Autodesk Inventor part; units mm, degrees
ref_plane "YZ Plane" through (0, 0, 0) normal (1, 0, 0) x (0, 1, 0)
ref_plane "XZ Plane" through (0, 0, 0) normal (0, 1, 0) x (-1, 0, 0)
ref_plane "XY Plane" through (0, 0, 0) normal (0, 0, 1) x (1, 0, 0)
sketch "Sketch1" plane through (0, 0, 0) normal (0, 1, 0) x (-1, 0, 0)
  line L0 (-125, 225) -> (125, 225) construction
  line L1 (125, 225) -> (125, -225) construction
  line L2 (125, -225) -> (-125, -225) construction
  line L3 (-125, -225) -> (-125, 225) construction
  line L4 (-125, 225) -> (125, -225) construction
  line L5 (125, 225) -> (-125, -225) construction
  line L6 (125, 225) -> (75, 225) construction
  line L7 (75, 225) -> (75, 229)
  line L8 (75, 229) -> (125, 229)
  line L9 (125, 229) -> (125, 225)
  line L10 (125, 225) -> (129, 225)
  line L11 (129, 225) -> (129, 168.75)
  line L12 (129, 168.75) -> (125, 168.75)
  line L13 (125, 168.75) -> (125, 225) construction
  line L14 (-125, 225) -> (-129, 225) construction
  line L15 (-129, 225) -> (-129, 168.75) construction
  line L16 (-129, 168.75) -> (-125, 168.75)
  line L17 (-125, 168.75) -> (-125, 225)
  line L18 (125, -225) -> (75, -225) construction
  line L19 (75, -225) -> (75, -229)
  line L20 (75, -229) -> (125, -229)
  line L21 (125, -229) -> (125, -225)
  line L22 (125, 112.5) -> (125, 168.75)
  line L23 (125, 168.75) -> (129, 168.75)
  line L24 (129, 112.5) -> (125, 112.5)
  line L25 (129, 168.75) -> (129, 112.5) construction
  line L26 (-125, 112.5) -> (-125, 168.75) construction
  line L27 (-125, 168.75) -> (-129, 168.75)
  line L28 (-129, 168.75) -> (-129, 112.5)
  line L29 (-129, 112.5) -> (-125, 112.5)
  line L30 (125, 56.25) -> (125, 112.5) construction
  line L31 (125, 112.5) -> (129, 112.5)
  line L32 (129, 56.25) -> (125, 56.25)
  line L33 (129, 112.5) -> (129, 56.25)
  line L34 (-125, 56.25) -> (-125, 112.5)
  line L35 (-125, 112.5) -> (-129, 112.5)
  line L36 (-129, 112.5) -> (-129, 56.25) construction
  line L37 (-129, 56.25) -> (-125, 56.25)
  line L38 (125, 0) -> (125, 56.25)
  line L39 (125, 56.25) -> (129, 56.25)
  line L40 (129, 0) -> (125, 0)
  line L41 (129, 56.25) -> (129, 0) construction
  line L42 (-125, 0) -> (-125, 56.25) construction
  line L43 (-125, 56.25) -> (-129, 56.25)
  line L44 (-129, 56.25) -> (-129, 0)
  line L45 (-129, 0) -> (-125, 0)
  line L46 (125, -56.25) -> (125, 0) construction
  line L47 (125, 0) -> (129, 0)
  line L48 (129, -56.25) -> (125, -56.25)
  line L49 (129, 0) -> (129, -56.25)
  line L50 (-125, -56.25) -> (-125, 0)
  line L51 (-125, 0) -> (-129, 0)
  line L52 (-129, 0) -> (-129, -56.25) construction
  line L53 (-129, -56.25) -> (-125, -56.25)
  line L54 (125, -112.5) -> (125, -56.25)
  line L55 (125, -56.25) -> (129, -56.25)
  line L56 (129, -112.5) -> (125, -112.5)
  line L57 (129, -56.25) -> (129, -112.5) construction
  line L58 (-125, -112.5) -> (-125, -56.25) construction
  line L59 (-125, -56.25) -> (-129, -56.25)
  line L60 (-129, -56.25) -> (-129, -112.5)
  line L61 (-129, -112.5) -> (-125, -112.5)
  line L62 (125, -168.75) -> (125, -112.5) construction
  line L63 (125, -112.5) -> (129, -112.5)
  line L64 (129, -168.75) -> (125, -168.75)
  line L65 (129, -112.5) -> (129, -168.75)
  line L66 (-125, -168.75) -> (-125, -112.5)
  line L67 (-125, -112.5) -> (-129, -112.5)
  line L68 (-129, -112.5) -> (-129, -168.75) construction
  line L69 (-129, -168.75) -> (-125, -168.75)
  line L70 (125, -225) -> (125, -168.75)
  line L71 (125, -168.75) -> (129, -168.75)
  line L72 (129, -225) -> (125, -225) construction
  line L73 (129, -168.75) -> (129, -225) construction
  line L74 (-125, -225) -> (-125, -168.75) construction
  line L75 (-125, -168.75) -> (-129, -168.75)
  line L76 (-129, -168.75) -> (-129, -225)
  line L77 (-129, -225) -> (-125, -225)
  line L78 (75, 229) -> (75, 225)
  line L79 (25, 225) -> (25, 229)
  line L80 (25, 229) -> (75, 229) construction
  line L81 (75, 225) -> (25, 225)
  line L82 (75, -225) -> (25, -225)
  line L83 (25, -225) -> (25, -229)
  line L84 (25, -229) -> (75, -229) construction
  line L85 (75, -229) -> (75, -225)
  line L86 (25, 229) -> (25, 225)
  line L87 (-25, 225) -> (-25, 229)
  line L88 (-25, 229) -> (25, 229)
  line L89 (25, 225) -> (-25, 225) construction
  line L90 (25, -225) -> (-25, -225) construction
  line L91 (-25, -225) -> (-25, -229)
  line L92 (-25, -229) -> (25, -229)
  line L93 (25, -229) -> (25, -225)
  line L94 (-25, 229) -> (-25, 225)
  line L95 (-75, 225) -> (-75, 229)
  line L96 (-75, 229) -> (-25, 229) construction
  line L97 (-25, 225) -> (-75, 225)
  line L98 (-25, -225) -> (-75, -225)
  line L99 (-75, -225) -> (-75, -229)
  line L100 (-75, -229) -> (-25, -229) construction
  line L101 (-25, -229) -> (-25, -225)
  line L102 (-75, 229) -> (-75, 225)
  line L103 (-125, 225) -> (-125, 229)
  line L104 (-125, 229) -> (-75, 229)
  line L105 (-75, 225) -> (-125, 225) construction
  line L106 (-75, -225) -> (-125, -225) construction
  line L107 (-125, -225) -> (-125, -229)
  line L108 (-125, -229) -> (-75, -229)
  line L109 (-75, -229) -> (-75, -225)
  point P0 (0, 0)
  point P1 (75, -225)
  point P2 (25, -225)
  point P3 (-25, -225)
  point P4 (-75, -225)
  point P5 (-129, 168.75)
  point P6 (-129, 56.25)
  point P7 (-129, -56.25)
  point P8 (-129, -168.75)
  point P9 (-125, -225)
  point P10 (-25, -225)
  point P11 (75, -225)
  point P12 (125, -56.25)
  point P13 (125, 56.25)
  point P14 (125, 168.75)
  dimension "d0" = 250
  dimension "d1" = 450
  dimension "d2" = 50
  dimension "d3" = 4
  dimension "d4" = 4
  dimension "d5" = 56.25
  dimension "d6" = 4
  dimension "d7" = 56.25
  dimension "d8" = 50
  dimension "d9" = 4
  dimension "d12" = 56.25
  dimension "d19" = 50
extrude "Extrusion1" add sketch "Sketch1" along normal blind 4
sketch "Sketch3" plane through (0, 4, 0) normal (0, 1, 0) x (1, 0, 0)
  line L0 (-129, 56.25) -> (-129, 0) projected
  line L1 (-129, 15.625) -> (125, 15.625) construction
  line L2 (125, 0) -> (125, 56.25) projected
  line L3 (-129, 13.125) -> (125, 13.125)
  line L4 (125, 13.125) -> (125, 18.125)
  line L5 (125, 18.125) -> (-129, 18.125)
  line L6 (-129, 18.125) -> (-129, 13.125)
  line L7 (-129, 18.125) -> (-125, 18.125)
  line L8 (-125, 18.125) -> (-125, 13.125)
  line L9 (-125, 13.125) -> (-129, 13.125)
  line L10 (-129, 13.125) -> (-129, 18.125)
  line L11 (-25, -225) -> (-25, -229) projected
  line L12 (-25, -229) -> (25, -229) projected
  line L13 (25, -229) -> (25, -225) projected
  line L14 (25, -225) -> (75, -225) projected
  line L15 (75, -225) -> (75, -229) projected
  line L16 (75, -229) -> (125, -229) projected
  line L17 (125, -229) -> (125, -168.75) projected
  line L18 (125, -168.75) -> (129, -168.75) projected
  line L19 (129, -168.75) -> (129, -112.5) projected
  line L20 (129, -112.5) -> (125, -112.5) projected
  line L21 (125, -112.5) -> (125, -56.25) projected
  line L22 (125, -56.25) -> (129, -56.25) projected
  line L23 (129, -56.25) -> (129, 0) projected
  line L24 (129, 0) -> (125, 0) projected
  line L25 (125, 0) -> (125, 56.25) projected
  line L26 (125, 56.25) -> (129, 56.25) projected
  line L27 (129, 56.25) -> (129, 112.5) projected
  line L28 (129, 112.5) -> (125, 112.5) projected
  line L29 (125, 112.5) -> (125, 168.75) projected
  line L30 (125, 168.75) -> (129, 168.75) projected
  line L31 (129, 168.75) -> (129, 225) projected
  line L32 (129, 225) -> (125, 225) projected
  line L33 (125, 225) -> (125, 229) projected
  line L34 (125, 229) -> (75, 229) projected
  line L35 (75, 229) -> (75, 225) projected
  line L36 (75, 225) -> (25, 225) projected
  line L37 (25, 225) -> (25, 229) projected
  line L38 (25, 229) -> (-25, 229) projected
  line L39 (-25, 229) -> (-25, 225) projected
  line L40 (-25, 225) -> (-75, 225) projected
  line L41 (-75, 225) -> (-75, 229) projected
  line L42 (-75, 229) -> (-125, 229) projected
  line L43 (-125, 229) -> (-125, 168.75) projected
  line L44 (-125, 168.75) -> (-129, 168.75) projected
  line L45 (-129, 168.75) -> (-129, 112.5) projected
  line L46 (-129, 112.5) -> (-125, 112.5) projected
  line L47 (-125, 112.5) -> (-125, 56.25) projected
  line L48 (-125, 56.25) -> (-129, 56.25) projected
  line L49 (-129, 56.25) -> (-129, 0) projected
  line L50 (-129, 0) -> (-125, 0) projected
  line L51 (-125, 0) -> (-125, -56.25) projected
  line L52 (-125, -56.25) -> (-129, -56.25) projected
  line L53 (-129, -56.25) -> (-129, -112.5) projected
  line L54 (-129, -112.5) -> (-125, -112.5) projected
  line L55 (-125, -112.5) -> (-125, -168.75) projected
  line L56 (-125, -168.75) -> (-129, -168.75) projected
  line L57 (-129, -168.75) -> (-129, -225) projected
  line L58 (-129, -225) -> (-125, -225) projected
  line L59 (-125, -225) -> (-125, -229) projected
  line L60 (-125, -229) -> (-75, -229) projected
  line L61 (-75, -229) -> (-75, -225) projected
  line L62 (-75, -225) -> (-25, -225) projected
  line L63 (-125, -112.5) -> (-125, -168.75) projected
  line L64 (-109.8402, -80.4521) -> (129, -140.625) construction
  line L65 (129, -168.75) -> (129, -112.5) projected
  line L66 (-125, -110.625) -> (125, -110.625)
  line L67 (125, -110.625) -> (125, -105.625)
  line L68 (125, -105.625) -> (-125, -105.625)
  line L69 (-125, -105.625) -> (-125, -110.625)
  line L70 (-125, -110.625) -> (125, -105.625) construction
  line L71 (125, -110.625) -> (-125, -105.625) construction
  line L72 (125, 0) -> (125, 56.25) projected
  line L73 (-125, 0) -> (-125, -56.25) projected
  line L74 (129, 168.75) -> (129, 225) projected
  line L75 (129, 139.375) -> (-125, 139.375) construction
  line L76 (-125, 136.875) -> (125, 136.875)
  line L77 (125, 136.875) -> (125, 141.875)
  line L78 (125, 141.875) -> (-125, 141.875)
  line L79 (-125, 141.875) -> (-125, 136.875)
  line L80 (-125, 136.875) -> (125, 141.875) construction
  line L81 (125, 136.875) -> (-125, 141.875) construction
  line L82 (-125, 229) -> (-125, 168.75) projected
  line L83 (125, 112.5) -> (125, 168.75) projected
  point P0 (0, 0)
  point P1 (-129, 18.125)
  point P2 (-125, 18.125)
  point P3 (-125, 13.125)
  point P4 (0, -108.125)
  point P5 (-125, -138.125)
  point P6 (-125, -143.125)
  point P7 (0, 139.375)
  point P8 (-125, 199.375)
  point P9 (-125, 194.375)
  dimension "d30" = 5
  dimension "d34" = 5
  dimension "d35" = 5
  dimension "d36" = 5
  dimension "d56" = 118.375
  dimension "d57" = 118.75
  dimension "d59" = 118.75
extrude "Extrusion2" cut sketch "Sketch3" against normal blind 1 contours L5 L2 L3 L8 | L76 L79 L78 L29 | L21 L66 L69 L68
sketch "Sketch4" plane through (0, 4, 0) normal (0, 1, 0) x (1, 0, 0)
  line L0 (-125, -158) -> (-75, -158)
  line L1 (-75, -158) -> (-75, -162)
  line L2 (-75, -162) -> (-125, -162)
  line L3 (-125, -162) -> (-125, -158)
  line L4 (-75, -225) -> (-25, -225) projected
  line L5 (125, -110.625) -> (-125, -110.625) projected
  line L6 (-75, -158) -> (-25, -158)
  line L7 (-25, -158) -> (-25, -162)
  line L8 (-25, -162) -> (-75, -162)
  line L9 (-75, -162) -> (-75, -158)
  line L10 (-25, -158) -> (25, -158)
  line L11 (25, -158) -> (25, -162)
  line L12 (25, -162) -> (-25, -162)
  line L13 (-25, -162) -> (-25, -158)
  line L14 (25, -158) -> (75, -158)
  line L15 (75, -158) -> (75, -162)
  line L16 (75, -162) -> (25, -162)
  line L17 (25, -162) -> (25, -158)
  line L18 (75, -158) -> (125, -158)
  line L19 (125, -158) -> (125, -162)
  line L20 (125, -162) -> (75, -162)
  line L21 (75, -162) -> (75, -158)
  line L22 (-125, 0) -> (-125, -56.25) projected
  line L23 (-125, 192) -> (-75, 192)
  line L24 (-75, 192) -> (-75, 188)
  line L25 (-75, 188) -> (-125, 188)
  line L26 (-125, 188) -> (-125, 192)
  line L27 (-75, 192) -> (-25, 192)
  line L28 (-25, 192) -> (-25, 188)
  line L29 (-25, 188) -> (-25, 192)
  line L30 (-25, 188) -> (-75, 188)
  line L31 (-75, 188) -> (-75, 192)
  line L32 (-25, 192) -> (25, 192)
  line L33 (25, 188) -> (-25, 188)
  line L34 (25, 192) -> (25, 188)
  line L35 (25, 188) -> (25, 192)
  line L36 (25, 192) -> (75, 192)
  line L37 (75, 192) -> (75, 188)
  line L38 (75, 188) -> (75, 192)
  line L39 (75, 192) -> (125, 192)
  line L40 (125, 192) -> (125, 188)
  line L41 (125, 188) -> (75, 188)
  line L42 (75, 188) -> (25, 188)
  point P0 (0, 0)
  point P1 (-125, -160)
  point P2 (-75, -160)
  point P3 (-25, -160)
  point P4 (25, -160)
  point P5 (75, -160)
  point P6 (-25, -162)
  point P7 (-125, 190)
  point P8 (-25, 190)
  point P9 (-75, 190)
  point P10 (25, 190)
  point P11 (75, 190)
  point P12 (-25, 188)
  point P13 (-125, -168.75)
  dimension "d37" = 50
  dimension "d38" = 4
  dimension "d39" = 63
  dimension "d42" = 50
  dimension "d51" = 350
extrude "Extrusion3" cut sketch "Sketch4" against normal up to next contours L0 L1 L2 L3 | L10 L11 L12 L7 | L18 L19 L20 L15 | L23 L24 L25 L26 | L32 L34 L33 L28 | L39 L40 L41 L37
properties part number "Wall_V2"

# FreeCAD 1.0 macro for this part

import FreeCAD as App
import Part
import Sketcher
from FreeCAD import Vector
Q = App.Units.Quantity


def add_polygon(sketch, points):
    """Adds a closed chain of lines whose ends are joined by coincident constraints."""
    first, n = sketch.GeometryCount, len(points)
    for a, b in zip(points, points[1:] + points[:1]):
        sketch.addGeometry(Part.LineSegment(App.Vector(*a, 0), App.Vector(*b, 0)), False)
    for i in range(n):
        sketch.addConstraint(Sketcher.Constraint("Coincident", first + i, 2, first + (i + 1) % n, 1))

doc = App.newDocument("Part")
body = doc.addObject("PartDesign::Body", "Body")

sketch1 = body.newObject("Sketcher::SketchObject", "Sketch")
sketch1.AttachmentSupport = (doc.getObject("XZ_Plane"), [""])
sketch1.MapMode = "FlatFace"
add_polygon(sketch1, [(-75, 229), (-75, 225), (-25, 225), (-25, 229), (25, 229), (25, 225), (75, 225), (75, 229), (125, 229), (125, 168.75), (129, 168.75), (129, 112.5), (125, 112.5), (125, 56.25), (129, 56.25), (129, 0), (125, 0), (125, -56.25), (129, -56.25), (129, -112.5), (125, -112.5), (125, -168.75), (129, -168.75), (129, -225), (125, -225), (125, -229), (75, -229), (75, -225), (25, -225), (25, -229), (-25, -229), (-25, -225), (-75, -225), (-75, -229), (-125, -229), (-125, -168.75), (-129, -168.75), (-129, -112.5), (-125, -112.5), (-125, -56.25), (-129, -56.25), (-129, 0), (-125, 0), (-125, 56.25), (-129, 56.25), (-129, 112.5), (-125, 112.5), (-125, 168.75), (-129, 168.75), (-129, 225), (-125, 225), (-125, 229)])
sketch1.addConstraint([
    Sketcher.Constraint("Vertical", 0),
    Sketcher.Constraint("Horizontal", 1),
    Sketcher.Constraint("Vertical", 2),
    Sketcher.Constraint("Horizontal", 3),
    Sketcher.Constraint("Vertical", 4),
    Sketcher.Constraint("Horizontal", 5),
    Sketcher.Constraint("Vertical", 6),
    Sketcher.Constraint("Horizontal", 7),
    Sketcher.Constraint("Vertical", 8),
    Sketcher.Constraint("Horizontal", 9),
    Sketcher.Constraint("Vertical", 10),
    Sketcher.Constraint("Horizontal", 11),
    Sketcher.Constraint("Vertical", 12),
    Sketcher.Constraint("Horizontal", 13),
    Sketcher.Constraint("Vertical", 14),
    Sketcher.Constraint("Horizontal", 15),
    Sketcher.Constraint("Vertical", 16),
    Sketcher.Constraint("Horizontal", 17),
    Sketcher.Constraint("Vertical", 18),
    Sketcher.Constraint("Horizontal", 19),
    Sketcher.Constraint("Vertical", 20),
    Sketcher.Constraint("Horizontal", 21),
    Sketcher.Constraint("Vertical", 22),
    Sketcher.Constraint("Horizontal", 23),
    Sketcher.Constraint("Vertical", 24),
    Sketcher.Constraint("Horizontal", 25),
    Sketcher.Constraint("Vertical", 26),
    Sketcher.Constraint("Horizontal", 27),
    Sketcher.Constraint("Vertical", 28),
    Sketcher.Constraint("Horizontal", 29),
    Sketcher.Constraint("Vertical", 30),
    Sketcher.Constraint("Horizontal", 31),
    Sketcher.Constraint("Vertical", 32),
    Sketcher.Constraint("Horizontal", 33),
    Sketcher.Constraint("Vertical", 34),
    Sketcher.Constraint("Horizontal", 35),
    Sketcher.Constraint("Vertical", 36),
    Sketcher.Constraint("Horizontal", 37),
    Sketcher.Constraint("Vertical", 38),
    Sketcher.Constraint("Horizontal", 39),
    Sketcher.Constraint("Vertical", 40),
    Sketcher.Constraint("Horizontal", 41),
    Sketcher.Constraint("Vertical", 42),
    Sketcher.Constraint("Horizontal", 43),
    Sketcher.Constraint("Vertical", 44),
    Sketcher.Constraint("Horizontal", 45),
    Sketcher.Constraint("Vertical", 46),
    Sketcher.Constraint("Horizontal", 47),
    Sketcher.Constraint("Vertical", 48),
    Sketcher.Constraint("Horizontal", 49),
    Sketcher.Constraint("Vertical", 50),
    Sketcher.Constraint("Horizontal", 51),
    Sketcher.Constraint("Symmetric", 0, 2, 26, 2, -1, 1),
    Sketcher.Constraint("Symmetric", 2, 2, 28, 2, -1, 1),
    Sketcher.Constraint("Symmetric", 4, 2, 30, 2, -1, 1),
    Sketcher.Constraint("Symmetric", 6, 2, 32, 2, -1, 1),
    Sketcher.Constraint("Symmetric", 8, 2, 34, 2, -1, 1),
    Sketcher.Constraint("Symmetric", 10, 2, 36, 2, -1, 1),
    Sketcher.Constraint("Symmetric", 12, 2, 38, 2, -1, 1),
    Sketcher.Constraint("Symmetric", 14, 2, 40, 2, -1, 1),
    Sketcher.Constraint("Symmetric", 16, 2, 42, 2, -1, 1),
    Sketcher.Constraint("Symmetric", 18, 2, 44, 2, -1, 1),
    Sketcher.Constraint("Symmetric", 20, 2, 46, 2, -1, 1),
    Sketcher.Constraint("Symmetric", 22, 2, 48, 2, -1, 1),
    Sketcher.Constraint("Symmetric", 24, 2, 50, 2, -1, 1),
    Sketcher.Constraint("Symmetric", 1, 2, 4, 2, -2),
    Sketcher.Constraint("Symmetric", 25, 2, 32, 2, -2),
    Sketcher.Constraint("Symmetric", 20, 2, 34, 2, -2),
    Sketcher.Constraint("Symmetric", 18, 2, 36, 2, -2),
    Sketcher.Constraint("Symmetric", 16, 2, 38, 2, -2),
    Sketcher.Constraint("PointOnObject", 14, 2, -1),
    Sketcher.Constraint("Horizontal", 3, 2, 6, 2),
    Sketcher.Constraint("Horizontal", 23, 2, 26, 2),
    Sketcher.Constraint("Vertical", 8, 2, 11, 2),
    Sketcher.Constraint("Vertical", 10, 2, 13, 2),
    Sketcher.Constraint("Vertical", 18, 2, 21, 2),
    Sketcher.Constraint("Vertical", 20, 2, 23, 2),
    Sketcher.Constraint("Equal", 1, 3),
    Sketcher.Constraint("Equal", 5, 7),
    Sketcher.Constraint("Equal", 49, 0),
    Sketcher.Constraint("Equal", 10, 12),
    Sketcher.Constraint("Equal", 12, 14),
    Sketcher.Constraint("Equal", 20, 22),
    Sketcher.Constraint("DistanceX", 1, 1, 1, 2, Q("50 mm")),
    Sketcher.Constraint("DistanceX", 9, 1, 9, 2, Q("4 mm")),
    Sketcher.Constraint("DistanceY", 10, 2, 10, 1, Q("56.25 mm")),
])
pad1 = body.newObject("PartDesign::Pad", "Pad")
pad1.Profile = sketch1
pad1.Length = 4
pad1.Reversed = True

sketch2 = body.newObject("Sketcher::SketchObject", "Sketch001")
sketch2.AttachmentSupport = (doc.getObject("XZ_Plane"), [""])
sketch2.MapMode = "FlatFace"
sketch2.AttachmentOffset = App.Placement(Vector(0, 0, -4), App.Rotation())
add_polygon(sketch2, [(125, -18.125), (-125, -18.125), (-125, -13.125), (125, -13.125)])
add_polygon(sketch2, [(-125, -136.875), (125, -136.875), (125, -141.875), (-125, -141.875)])
add_polygon(sketch2, [(125, 110.625), (125, 105.625), (-125, 105.625), (-125, 110.625)])
sketch2.addConstraint([
    Sketcher.Constraint("Horizontal", 0),
    Sketcher.Constraint("Vertical", 1),
    Sketcher.Constraint("Horizontal", 2),
    Sketcher.Constraint("Vertical", 3),
    Sketcher.Constraint("Horizontal", 4),
    Sketcher.Constraint("Vertical", 5),
    Sketcher.Constraint("Horizontal", 6),
    Sketcher.Constraint("Vertical", 7),
    Sketcher.Constraint("Vertical", 8),
    Sketcher.Constraint("Horizontal", 9),
    Sketcher.Constraint("Vertical", 10),
    Sketcher.Constraint("Horizontal", 11),
    Sketcher.Constraint("Vertical", 3, 2, 4, 2),
    Sketcher.Constraint("Vertical", 1, 2, 6, 2),
    Sketcher.Constraint("Vertical", 5, 2, 8, 2),
    Sketcher.Constraint("Vertical", 7, 2, 9, 2),
    Sketcher.Constraint("Equal", 3, 5),
    Sketcher.Constraint("Equal", 7, 8),
    Sketcher.Constraint("DistanceY", 1, 1, 1, 2, Q("5 mm")),
    Sketcher.Constraint("DistanceX", 0, 2, 0, 1, Q("250 mm")),
    Sketcher.Constraint("DistanceY", 4, 2, 3, 2, Q("118.75 mm")),
    Sketcher.Constraint("DistanceY", 2, 2, 8, 2, Q("118.75 mm")),
    Sketcher.Constraint("DistanceX", 0, 2, -1, 1, Q("125 mm")),
    Sketcher.Constraint("DistanceY", 0, 2, -1, 1, Q("18.125 mm")),
])
pocket1 = body.newObject("PartDesign::Pocket", "Pocket")
pocket1.Profile = sketch2
pocket1.Length = 1
pocket1.Reversed = True

sketch3 = body.newObject("Sketcher::SketchObject", "Sketch002")
sketch3.AttachmentSupport = (doc.getObject("XZ_Plane"), [""])
sketch3.MapMode = "FlatFace"
sketch3.AttachmentOffset = App.Placement(Vector(0, 0, -4), App.Rotation())
add_polygon(sketch3, [(-75, 158), (-125, 158), (-125, 162), (-75, 162)])
add_polygon(sketch3, [(25, 158), (-25, 158), (-25, 162), (25, 162)])
add_polygon(sketch3, [(125, 158), (75, 158), (75, 162), (125, 162)])
add_polygon(sketch3, [(-75, -192), (-125, -192), (-125, -188), (-75, -188)])
add_polygon(sketch3, [(25, -192), (-25, -192), (-25, -188), (25, -188)])
add_polygon(sketch3, [(125, -192), (75, -192), (75, -188), (125, -188)])
sketch3.addConstraint([
    Sketcher.Constraint("Horizontal", 0),
    Sketcher.Constraint("Vertical", 1),
    Sketcher.Constraint("Horizontal", 2),
    Sketcher.Constraint("Vertical", 3),
    Sketcher.Constraint("Horizontal", 4),
    Sketcher.Constraint("Vertical", 5),
    Sketcher.Constraint("Horizontal", 6),
    Sketcher.Constraint("Vertical", 7),
    Sketcher.Constraint("Horizontal", 8),
    Sketcher.Constraint("Vertical", 9),
    Sketcher.Constraint("Horizontal", 10),
    Sketcher.Constraint("Vertical", 11),
    Sketcher.Constraint("Horizontal", 12),
    Sketcher.Constraint("Vertical", 13),
    Sketcher.Constraint("Horizontal", 14),
    Sketcher.Constraint("Vertical", 15),
    Sketcher.Constraint("Horizontal", 16),
    Sketcher.Constraint("Vertical", 17),
    Sketcher.Constraint("Horizontal", 18),
    Sketcher.Constraint("Vertical", 19),
    Sketcher.Constraint("Horizontal", 20),
    Sketcher.Constraint("Vertical", 21),
    Sketcher.Constraint("Horizontal", 22),
    Sketcher.Constraint("Vertical", 23),
    Sketcher.Constraint("Symmetric", 3, 2, 8, 2, -2),
    Sketcher.Constraint("Symmetric", 1, 2, 10, 2, -2),
    Sketcher.Constraint("Symmetric", 15, 2, 20, 2, -2),
    Sketcher.Constraint("Symmetric", 13, 2, 22, 2, -2),
    Sketcher.Constraint("Horizontal", 3, 2, 4, 2),
    Sketcher.Constraint("Horizontal", 2, 2, 5, 2),
    Sketcher.Constraint("Horizontal", 15, 2, 16, 2),
    Sketcher.Constraint("Horizontal", 14, 2, 17, 2),
    Sketcher.Constraint("Vertical", 1, 2, 12, 2),
    Sketcher.Constraint("Vertical", 3, 2, 14, 2),
    Sketcher.Constraint("Vertical", 5, 2, 16, 2),
    Sketcher.Constraint("Vertical", 7, 2, 18, 2),
    Sketcher.Constraint("Equal", 2, 4),
    Sketcher.Constraint("Equal", 11, 13),
    Sketcher.Constraint("DistanceX", 0, 2, 0, 1, Q("50 mm")),
    Sketcher.Constraint("DistanceY", 1, 1, 1, 2, Q("4 mm")),
    Sketcher.Constraint("DistanceX", 3, 2, 4, 2, Q("50 mm")),
    Sketcher.Constraint("DistanceX", 7, 2, 8, 2, Q("50 mm")),
    Sketcher.Constraint("DistanceY", 12, 2, 0, 2, Q("350 mm")),
    Sketcher.Constraint("DistanceY", -1, 1, 0, 2, Q("158 mm")),
])
pocket2 = body.newObject("PartDesign::Pocket", "Pocket001")
pocket2.Profile = sketch3
pocket2.Length = 4
pocket2.Reversed = True

doc.recompute()
